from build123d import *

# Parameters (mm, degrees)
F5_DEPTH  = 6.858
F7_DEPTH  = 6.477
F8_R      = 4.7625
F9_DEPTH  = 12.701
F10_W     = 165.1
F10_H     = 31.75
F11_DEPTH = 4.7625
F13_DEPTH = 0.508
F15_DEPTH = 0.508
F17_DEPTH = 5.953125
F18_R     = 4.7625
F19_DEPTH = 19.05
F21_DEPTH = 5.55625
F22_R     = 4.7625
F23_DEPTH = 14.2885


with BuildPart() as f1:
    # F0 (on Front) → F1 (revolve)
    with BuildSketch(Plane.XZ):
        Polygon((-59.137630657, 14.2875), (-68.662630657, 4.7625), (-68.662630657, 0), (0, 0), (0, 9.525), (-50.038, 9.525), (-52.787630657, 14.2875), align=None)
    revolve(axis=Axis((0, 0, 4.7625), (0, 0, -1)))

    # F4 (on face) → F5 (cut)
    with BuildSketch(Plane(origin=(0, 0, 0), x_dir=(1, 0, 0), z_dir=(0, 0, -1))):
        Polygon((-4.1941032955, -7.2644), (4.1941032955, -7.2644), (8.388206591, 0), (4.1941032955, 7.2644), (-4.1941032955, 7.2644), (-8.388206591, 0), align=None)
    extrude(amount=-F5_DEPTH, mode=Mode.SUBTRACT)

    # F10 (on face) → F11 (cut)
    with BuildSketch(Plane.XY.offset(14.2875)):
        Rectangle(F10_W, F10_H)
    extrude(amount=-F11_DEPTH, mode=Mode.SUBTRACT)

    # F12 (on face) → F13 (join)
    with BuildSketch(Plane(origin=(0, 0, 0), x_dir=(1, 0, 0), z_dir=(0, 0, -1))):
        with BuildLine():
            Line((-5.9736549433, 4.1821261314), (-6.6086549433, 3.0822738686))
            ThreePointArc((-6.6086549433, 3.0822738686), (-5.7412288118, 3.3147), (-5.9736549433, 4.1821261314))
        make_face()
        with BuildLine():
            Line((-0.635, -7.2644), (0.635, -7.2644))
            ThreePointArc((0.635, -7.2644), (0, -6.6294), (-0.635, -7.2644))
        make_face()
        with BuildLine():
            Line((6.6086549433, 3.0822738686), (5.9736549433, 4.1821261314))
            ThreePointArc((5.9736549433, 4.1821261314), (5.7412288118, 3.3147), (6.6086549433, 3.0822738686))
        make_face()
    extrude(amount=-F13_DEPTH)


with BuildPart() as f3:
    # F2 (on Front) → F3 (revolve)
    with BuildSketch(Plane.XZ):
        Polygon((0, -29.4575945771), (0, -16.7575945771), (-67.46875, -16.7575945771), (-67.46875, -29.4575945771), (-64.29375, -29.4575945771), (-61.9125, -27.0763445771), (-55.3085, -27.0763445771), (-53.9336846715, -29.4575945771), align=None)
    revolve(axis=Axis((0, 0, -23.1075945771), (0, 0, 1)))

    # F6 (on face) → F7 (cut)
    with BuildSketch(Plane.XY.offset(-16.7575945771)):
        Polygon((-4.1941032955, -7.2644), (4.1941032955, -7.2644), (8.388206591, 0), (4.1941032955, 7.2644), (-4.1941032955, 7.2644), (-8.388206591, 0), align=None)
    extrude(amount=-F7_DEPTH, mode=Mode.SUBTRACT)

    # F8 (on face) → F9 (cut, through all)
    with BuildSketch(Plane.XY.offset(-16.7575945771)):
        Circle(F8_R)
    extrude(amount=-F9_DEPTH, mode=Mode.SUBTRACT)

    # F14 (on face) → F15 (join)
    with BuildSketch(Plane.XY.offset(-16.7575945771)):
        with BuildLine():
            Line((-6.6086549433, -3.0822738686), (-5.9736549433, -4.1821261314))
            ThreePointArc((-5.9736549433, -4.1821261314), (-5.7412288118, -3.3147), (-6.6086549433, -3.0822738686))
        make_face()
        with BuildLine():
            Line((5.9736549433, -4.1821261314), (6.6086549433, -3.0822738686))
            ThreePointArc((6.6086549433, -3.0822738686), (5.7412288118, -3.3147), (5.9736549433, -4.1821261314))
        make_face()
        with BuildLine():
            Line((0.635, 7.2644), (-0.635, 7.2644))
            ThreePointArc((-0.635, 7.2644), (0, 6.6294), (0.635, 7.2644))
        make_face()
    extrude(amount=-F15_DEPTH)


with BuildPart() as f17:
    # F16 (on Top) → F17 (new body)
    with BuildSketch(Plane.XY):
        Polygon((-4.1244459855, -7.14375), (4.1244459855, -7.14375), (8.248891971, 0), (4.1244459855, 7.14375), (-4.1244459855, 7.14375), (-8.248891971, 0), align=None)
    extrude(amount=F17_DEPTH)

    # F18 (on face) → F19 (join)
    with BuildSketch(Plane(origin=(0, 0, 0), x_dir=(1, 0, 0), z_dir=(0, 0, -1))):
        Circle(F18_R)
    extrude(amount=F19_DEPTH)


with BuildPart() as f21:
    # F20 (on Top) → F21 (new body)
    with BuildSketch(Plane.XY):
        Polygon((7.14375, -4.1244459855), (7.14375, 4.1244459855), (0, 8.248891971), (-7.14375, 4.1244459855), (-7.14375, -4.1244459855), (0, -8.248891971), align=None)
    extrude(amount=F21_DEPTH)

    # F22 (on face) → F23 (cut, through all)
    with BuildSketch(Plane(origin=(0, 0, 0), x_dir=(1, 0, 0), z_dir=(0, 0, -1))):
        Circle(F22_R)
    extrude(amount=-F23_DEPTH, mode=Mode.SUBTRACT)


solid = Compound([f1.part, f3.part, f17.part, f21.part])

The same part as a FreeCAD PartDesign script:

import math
import FreeCAD as App
import Part
import Sketcher
Q = App.Units.Quantity


def add_polygon(sketch, points):
    """Adds a closed chain of lines whose ends are joined by coincident constraints."""
    first, n = sketch.GeometryCount, len(points)
    for a, b in zip(points, points[1:] + points[:1]):
        sketch.addGeometry(Part.LineSegment(App.Vector(*a, 0), App.Vector(*b, 0)), False)
    for i in range(n):
        sketch.addConstraint(Sketcher.Constraint("Coincident", first + i, 2, first + (i + 1) % n, 1))

doc = App.newDocument("Part")
body = doc.addObject("PartDesign::Body", "Body")

sketch1 = body.newObject("Sketcher::SketchObject", "Sketch")
sketch1.AttachmentSupport = (doc.getObject("XZ_Plane"), [""])
sketch1.MapMode = "FlatFace"
add_polygon(sketch1, [(-59.137631, 14.2875), (-68.662631, 4.7625), (-68.662631, 0), (0, 0), (0, 9.525), (-50.038, 9.525), (-52.787631, 14.2875)])
sketch1.addConstraint(Sketcher.Constraint("Vertical", 1))
sketch1.addConstraint(Sketcher.Constraint("Horizontal", 2))
sketch1.addConstraint(Sketcher.Constraint("Vertical", 3))
sketch1.addConstraint(Sketcher.Constraint("Horizontal", 4))
sketch1.addConstraint(Sketcher.Constraint("Horizontal", 6))
sketch1.addConstraint(Sketcher.Constraint("Coincident", 2, 2, -1, 1))
sketch1.addConstraint(Sketcher.Constraint("Angle", 0, Q("-135 deg")))
sketch1.addConstraint(Sketcher.Constraint("Angle", 5, Q("120 deg")))
sketch1.addConstraint(Sketcher.Constraint("DistanceX", 4, 2, 4, 1, Q("1.97 in")))
sketch1.addConstraint(Sketcher.Constraint("DistanceX", 6, 2, 6, 1, Q("0.25 in")))
sketch1.addConstraint(Sketcher.Constraint("DistanceY", 1, 2, 1, 1, Q("0.1875 in")))
sketch1.addConstraint(Sketcher.Constraint("DistanceY", 3, 1, 3, 2, Q("0.375 in")))
sketch1.addConstraint(Sketcher.Constraint("DistanceY", -1, 1, 5, 2, Q("0.5625 in")))
revolution = body.newObject("PartDesign::Revolution", "Revolution")
revolution.Profile = sketch1
revolution.ReferenceAxis = (sketch1, ["V_Axis"])
revolution.Angle = 360

sketch2 = body.newObject("Sketcher::SketchObject", "Sketch001")
sketch2.AttachmentSupport = (doc.getObject("XY_Plane"), [""])
sketch2.MapMode = "FlatFace"
add_polygon(sketch2, [(-4.194103, 7.2644), (4.194103, 7.2644), (8.388207, 0), (4.194103, -7.2644), (-4.194103, -7.2644), (-8.388207, 0)])
sketch2.addConstraint(Sketcher.Constraint("Horizontal", 0))
sketch2.addConstraint(Sketcher.Constraint("Horizontal", 3))
sketch2.addConstraint(Sketcher.Constraint("Symmetric", 0, 2, 3, 2, -1, 1))
sketch2.addConstraint(Sketcher.Constraint("Symmetric", 1, 2, 4, 2, -1, 1))
sketch2.addConstraint(Sketcher.Constraint("PointOnObject", 1, 2, -1))
sketch2.addConstraint(Sketcher.Constraint("Parallel", 2, 5))
sketch2.addConstraint(Sketcher.Constraint("Vertical", 0, 2, 2, 2))
sketch2.addConstraint(Sketcher.Constraint("Angle", 1, Q("-60 deg")))
sketch2.addConstraint(Sketcher.Constraint("DistanceY", -1, 1, 0, 2, Q("0.286 in")))
sketch2.addConstraint(Sketcher.Constraint("DistanceX", 0, 1, 0, 2, 8.388207))
pocket1 = body.newObject("PartDesign::Pocket", "Pocket")
pocket1.Profile = sketch2
pocket1.Length = Q("0.27 in")
pocket1.Reversed = True

sketch3 = body.newObject("Sketcher::SketchObject", "Sketch002")
sketch3.AttachmentSupport = (doc.getObject("XY_Plane"), [""])
sketch3.MapMode = "FlatFace"
sketch3.AttachmentOffset = App.Placement(App.Vector(0, 0, 0.5625 * 25.4), App.Rotation())
add_polygon(sketch3, [(-82.55, 15.875), (-82.55, -15.875), (82.55, -15.875), (82.55, 15.875)])
sketch3.addConstraint(Sketcher.Constraint("Vertical", 0))
sketch3.addConstraint(Sketcher.Constraint("Horizontal", 1))
sketch3.addConstraint(Sketcher.Constraint("Vertical", 2))
sketch3.addConstraint(Sketcher.Constraint("Horizontal", 3))
sketch3.addConstraint(Sketcher.Constraint("Symmetric", 0, 2, 2, 2, -1, 1))
sketch3.addConstraint(Sketcher.Constraint("DistanceX", 1, 1, 1, 2, Q("6.5 in")))
sketch3.addConstraint(Sketcher.Constraint("DistanceY", 0, 2, 0, 1, Q("1.25 in")))
pocket2 = body.newObject("PartDesign::Pocket", "Pocket001")
pocket2.Profile = sketch3
pocket2.Length = Q("0.1875 in")

sketch4 = body.newObject("Sketcher::SketchObject", "Sketch003")
sketch4.AttachmentSupport = (doc.getObject("XY_Plane"), [""])
sketch4.MapMode = "FlatFace"
sketch4.addGeometry(Part.LineSegment(App.Vector(-5.973655, -4.182126, 0), App.Vector(-6.608655, -3.082274, 0)), False)
sketch4.addGeometry(Part.ArcOfCircle(Part.Circle(App.Vector(-6.291155, -3.6322, 0), App.Vector(0, 0, 1), 0.635), math.radians(-60), math.radians(120)), False)
sketch4.addGeometry(Part.LineSegment(App.Vector(-0.635, 7.2644, 0), App.Vector(0.635, 7.2644, 0)), False)
sketch4.addGeometry(Part.ArcOfCircle(Part.Circle(App.Vector(0, 7.2644, 0), App.Vector(0, 0, 1), 0.635), math.radians(180), math.radians(360)), False)
sketch4.addGeometry(Part.LineSegment(App.Vector(6.608655, -3.082274, 0), App.Vector(5.973655, -4.182126, 0)), False)
sketch4.addGeometry(Part.ArcOfCircle(Part.Circle(App.Vector(6.291155, -3.6322, 0), App.Vector(0, 0, 1), 0.635), math.radians(60), math.radians(240)), False)
sketch4.addConstraint(Sketcher.Constraint("Coincident", 0, 1, 1, 1))
sketch4.addConstraint(Sketcher.Constraint("Coincident", 1, 2, 0, 2))
sketch4.addConstraint(Sketcher.Constraint("Coincident", 2, 1, 3, 1))
sketch4.addConstraint(Sketcher.Constraint("Coincident", 3, 2, 2, 2))
sketch4.addConstraint(Sketcher.Constraint("Coincident", 4, 1, 5, 1))
sketch4.addConstraint(Sketcher.Constraint("Coincident", 5, 2, 4, 2))
sketch4.addConstraint(Sketcher.Constraint("Horizontal", 2))
sketch4.addConstraint(Sketcher.Constraint("Equal", 1, 3))
sketch4.addConstraint(Sketcher.Constraint("Equal", 3, 5))
sketch4.addConstraint(Sketcher.Constraint("Symmetric", 1, 3, 5, 3, -2))
sketch4.addConstraint(Sketcher.Constraint("PointOnObject", 3, 3, -2))
sketch4.addConstraint(Sketcher.Constraint("Horizontal", 3, 3, 2, 1))
sketch4.addConstraint(Sketcher.Constraint("Horizontal", 1, 2, 4, 1))
sketch4.addConstraint(Sketcher.Constraint("Horizontal", 0, 1, 5, 2))
sketch4.addConstraint(Sketcher.Constraint("Angle", 0, Q("120 deg")))
sketch4.addConstraint(Sketcher.Constraint("Radius", 1, Q("0.025 in")))
sketch4.addConstraint(Sketcher.Constraint("DistanceY", 1, 3, -1, 1, Q("0.143 in")))
sketch4.addConstraint(Sketcher.Constraint("DistanceY", -1, 1, 3, 3, Q("0.286 in")))
sketch4.addConstraint(Sketcher.Constraint("DistanceX", 1, 3, 0, 1, Q("0.0125 in")))
sketch4.addConstraint(Sketcher.Constraint("DistanceX", 1, 3, 5, 3, 12.58231))
pad1 = body.newObject("PartDesign::Pad", "Pad")
pad1.Profile = sketch4
pad1.Length = Q("0.02 in")
body2 = doc.addObject("PartDesign::Body", "Body001")

sketch5 = body2.newObject("Sketcher::SketchObject", "Sketch004")
sketch5.AttachmentSupport = (doc.getObject("XZ_Plane001"), [""])
sketch5.MapMode = "FlatFace"
add_polygon(sketch5, [(0, -29.457595), (0, -16.757595), (-67.46875, -16.757595), (-67.46875, -29.457595), (-64.29375, -29.457595), (-61.9125, -27.076345), (-55.3085, -27.076345), (-53.933685, -29.457595)])
sketch5.addConstraint(Sketcher.Constraint("Vertical", 0))
sketch5.addConstraint(Sketcher.Constraint("Horizontal", 1))
sketch5.addConstraint(Sketcher.Constraint("Vertical", 2))
sketch5.addConstraint(Sketcher.Constraint("Horizontal", 3))
sketch5.addConstraint(Sketcher.Constraint("Horizontal", 5))
sketch5.addConstraint(Sketcher.Constraint("Horizontal", 7))
sketch5.addConstraint(Sketcher.Constraint("PointOnObject", 0, 2, -2))
sketch5.addConstraint(Sketcher.Constraint("Horizontal", 3, 2, 6, 2))
sketch5.addConstraint(Sketcher.Constraint("DistanceY", 0, 1, 0, 2, Q("0.5 in")))
sketch5.addConstraint(Sketcher.Constraint("Angle", 4, Q("45 deg")))
sketch5.addConstraint(Sketcher.Constraint("Angle", 6, Q("-60 deg")))
sketch5.addConstraint(Sketcher.Constraint("DistanceX", 5, 1, 5, 2, Q("0.26 in")))
sketch5.addConstraint(Sketcher.Constraint("DistanceX", 1, 2, 1, 1, Q("2.65625 in")))
sketch5.addConstraint(Sketcher.Constraint("DistanceX", 3, 1, 3, 2, Q("0.125 in")))
sketch5.addConstraint(Sketcher.Constraint("DistanceX", 4, 2, -1, 1, Q("2.4375 in")))
sketch5.addConstraint(Sketcher.Constraint("DistanceY", 0, 2, -1, 1, 16.757595))
revolution2 = body2.newObject("PartDesign::Revolution", "Revolution001")
revolution2.Profile = sketch5
revolution2.ReferenceAxis = (sketch5, ["V_Axis"])
revolution2.Angle = 360

sketch6 = body2.newObject("Sketcher::SketchObject", "Sketch005")
sketch6.AttachmentSupport = (doc.getObject("XY_Plane001"), [""])
sketch6.MapMode = "FlatFace"
sketch6.AttachmentOffset = App.Placement(App.Vector(0, 0, -16.757595), App.Rotation())
add_polygon(sketch6, [(-4.194103, -7.2644), (4.194103, -7.2644), (8.388207, 0), (4.194103, 7.2644), (-4.194103, 7.2644), (-8.388207, 0)])
sketch6.addConstraint(Sketcher.Constraint("Horizontal", 0))
sketch6.addConstraint(Sketcher.Constraint("Horizontal", 3))
sketch6.addConstraint(Sketcher.Constraint("Symmetric", 0, 2, 3, 2, -1, 1))
sketch6.addConstraint(Sketcher.Constraint("Symmetric", 1, 2, 4, 2, -1, 1))
sketch6.addConstraint(Sketcher.Constraint("PointOnObject", 1, 2, -1))
sketch6.addConstraint(Sketcher.Constraint("Parallel", 2, 5))
sketch6.addConstraint(Sketcher.Constraint("Vertical", 0, 2, 2, 2))
sketch6.addConstraint(Sketcher.Constraint("Angle", 1, Q("60 deg")))
sketch6.addConstraint(Sketcher.Constraint("DistanceY", 0, 2, -1, 1, Q("0.286 in")))
sketch6.addConstraint(Sketcher.Constraint("DistanceX", 0, 1, 0, 2, 8.388207))
pocket3 = body2.newObject("PartDesign::Pocket", "Pocket002")
pocket3.Profile = sketch6
pocket3.Length = Q("0.255 in")

sketch7 = body2.newObject("Sketcher::SketchObject", "Sketch006")
sketch7.AttachmentSupport = (doc.getObject("XY_Plane001"), [""])
sketch7.MapMode = "FlatFace"
sketch7.AttachmentOffset = App.Placement(App.Vector(0, 0, -16.757595), App.Rotation())
sketch7.addGeometry(Part.Circle(App.Vector(0, 0, 0), App.Vector(0, 0, 1), 4.7625), False)
sketch7.addConstraint(Sketcher.Constraint("Coincident", 0, 3, -1, 1))
sketch7.addConstraint(Sketcher.Constraint("Diameter", 0, Q("0.375 in")))
pocket4 = body2.newObject("PartDesign::Pocket", "Pocket003")
pocket4.Profile = sketch7
pocket4.Type = "ThroughAll"

sketch8 = body2.newObject("Sketcher::SketchObject", "Sketch007")
sketch8.AttachmentSupport = (doc.getObject("XY_Plane001"), [""])
sketch8.MapMode = "FlatFace"
sketch8.AttachmentOffset = App.Placement(App.Vector(0, 0, -16.757595), App.Rotation())
sketch8.addGeometry(Part.LineSegment(App.Vector(-6.608655, -3.082274, 0), App.Vector(-5.973655, -4.182126, 0)), False)
sketch8.addGeometry(Part.ArcOfCircle(Part.Circle(App.Vector(-6.291155, -3.6322, 0), App.Vector(0, 0, 1), 0.635), math.radians(-60), math.radians(120)), False)
sketch8.addGeometry(Part.LineSegment(App.Vector(5.973655, -4.182126, 0), App.Vector(6.608655, -3.082274, 0)), False)
sketch8.addGeometry(Part.ArcOfCircle(Part.Circle(App.Vector(6.291155, -3.6322, 0), App.Vector(0, 0, 1), 0.635), math.radians(60), math.radians(240)), False)
sketch8.addGeometry(Part.LineSegment(App.Vector(0.635, 7.2644, 0), App.Vector(-0.635, 7.2644, 0)), False)
sketch8.addGeometry(Part.ArcOfCircle(Part.Circle(App.Vector(0, 7.2644, 0), App.Vector(0, 0, 1), 0.635), math.radians(180), math.radians(360)), False)
sketch8.addConstraint(Sketcher.Constraint("Coincident", 0, 1, 1, 2))
sketch8.addConstraint(Sketcher.Constraint("Coincident", 1, 1, 0, 2))
sketch8.addConstraint(Sketcher.Constraint("Coincident", 2, 1, 3, 2))
sketch8.addConstraint(Sketcher.Constraint("Coincident", 3, 1, 2, 2))
sketch8.addConstraint(Sketcher.Constraint("Coincident", 4, 1, 5, 2))
sketch8.addConstraint(Sketcher.Constraint("Coincident", 5, 1, 4, 2))
sketch8.addConstraint(Sketcher.Constraint("Horizontal", 4))
sketch8.addConstraint(Sketcher.Constraint("Equal", 1, 3))
sketch8.addConstraint(Sketcher.Constraint("Equal", 3, 5))
sketch8.addConstraint(Sketcher.Constraint("Symmetric", 1, 3, 3, 3, -2))
sketch8.addConstraint(Sketcher.Constraint("PointOnObject", 5, 3, -2))
sketch8.addConstraint(Sketcher.Constraint("Horizontal", 1, 1, 2, 1))
sketch8.addConstraint(Sketcher.Constraint("Horizontal", 0, 1, 3, 1))
sketch8.addConstraint(Sketcher.Constraint("Horizontal", 5, 3, 4, 1))
sketch8.addConstraint(Sketcher.Constraint("Angle", 0, Q("-60 deg")))
sketch8.addConstraint(Sketcher.Constraint("Radius", 1, Q("0.025 in")))
sketch8.addConstraint(Sketcher.Constraint("DistanceY", 1, 3, -1, 1, Q("0.143 in")))
sketch8.addConstraint(Sketcher.Constraint("DistanceY", -1, 1, 5, 3, Q("0.286 in")))
sketch8.addConstraint(Sketcher.Constraint("DistanceX", 0, 1, 1, 3, Q("0.0125 in")))
sketch8.addConstraint(Sketcher.Constraint("DistanceX", 1, 3, 3, 3, 12.58231))
pad2 = body2.newObject("PartDesign::Pad", "Pad001")
pad2.Profile = sketch8
pad2.Length = Q("0.02 in")
pad2.Reversed = True
body3 = doc.addObject("PartDesign::Body", "Body002")

sketch9 = body3.newObject("Sketcher::SketchObject", "Sketch008")
sketch9.AttachmentSupport = (doc.getObject("XY_Plane002"), [""])
sketch9.MapMode = "FlatFace"
add_polygon(sketch9, [(-4.124446, -7.14375), (4.124446, -7.14375), (8.248892, 0), (4.124446, 7.14375), (-4.124446, 7.14375), (-8.248892, 0)])
sketch9.addConstraint(Sketcher.Constraint("Horizontal", 0))
sketch9.addConstraint(Sketcher.Constraint("Horizontal", 3))
sketch9.addConstraint(Sketcher.Constraint("Symmetric", 0, 2, 3, 2, -1, 1))
sketch9.addConstraint(Sketcher.Constraint("Symmetric", 1, 2, 4, 2, -1, 1))
sketch9.addConstraint(Sketcher.Constraint("PointOnObject", 1, 2, -1))
sketch9.addConstraint(Sketcher.Constraint("Parallel", 2, 5))
sketch9.addConstraint(Sketcher.Constraint("Vertical", 0, 2, 2, 2))
sketch9.addConstraint(Sketcher.Constraint("Angle", 1, Q("60 deg")))
sketch9.addConstraint(Sketcher.Constraint("DistanceY", 0, 2, -1, 1, Q("0.28125 in")))
sketch9.addConstraint(Sketcher.Constraint("DistanceX", 0, 1, 0, 2, 8.248892))
pad3 = body3.newObject("PartDesign::Pad", "Pad002")
pad3.Profile = sketch9
pad3.Length = Q("0.234375 in")

sketch10 = body3.newObject("Sketcher::SketchObject", "Sketch009")
sketch10.AttachmentSupport = (doc.getObject("XY_Plane002"), [""])
sketch10.MapMode = "FlatFace"
sketch10.addGeometry(Part.Circle(App.Vector(0, 0, 0), App.Vector(0, 0, 1), 4.7625), False)
sketch10.addConstraint(Sketcher.Constraint("Coincident", 0, 3, -1, 1))
sketch10.addConstraint(Sketcher.Constraint("Diameter", 0, Q("0.375 in")))
pad4 = body3.newObject("PartDesign::Pad", "Pad003")
pad4.Profile = sketch10
pad4.Length = Q("0.75 in")
pad4.Reversed = True
body4 = doc.addObject("PartDesign::Body", "Body003")

sketch11 = body4.newObject("Sketcher::SketchObject", "Sketch010")
sketch11.AttachmentSupport = (doc.getObject("XY_Plane003"), [""])
sketch11.MapMode = "FlatFace"
add_polygon(sketch11, [(7.14375, -4.124446), (7.14375, 4.124446), (0, 8.248892), (-7.14375, 4.124446), (-7.14375, -4.124446), (0, -8.248892)])
sketch11.addConstraint(Sketcher.Constraint("Vertical", 0))
sketch11.addConstraint(Sketcher.Constraint("Vertical", 3))
sketch11.addConstraint(Sketcher.Constraint("Symmetric", 0, 2, 3, 2, -1, 1))
sketch11.addConstraint(Sketcher.Constraint("Symmetric", 1, 2, 4, 2, -1, 1))
sketch11.addConstraint(Sketcher.Constraint("PointOnObject", 1, 2, -2))
sketch11.addConstraint(Sketcher.Constraint("Parallel", 2, 5))
sketch11.addConstraint(Sketcher.Constraint("Horizontal", 0, 2, 2, 2))
sketch11.addConstraint(Sketcher.Constraint("Angle", 1, Q("150 deg")))
sketch11.addConstraint(Sketcher.Constraint("DistanceX", -1, 1, 0, 2, Q("0.28125 in")))
sketch11.addConstraint(Sketcher.Constraint("DistanceY", 0, 1, 0, 2, 8.248892))
pad5 = body4.newObject("PartDesign::Pad", "Pad004")
pad5.Profile = sketch11
pad5.Length = Q("0.21875 in")

sketch12 = body4.newObject("Sketcher::SketchObject", "Sketch011")
sketch12.AttachmentSupport = (doc.getObject("XY_Plane003"), [""])
sketch12.MapMode = "FlatFace"
sketch12.addGeometry(Part.Circle(App.Vector(0, 0, 0), App.Vector(0, 0, 1), 4.7625), False)
sketch12.addConstraint(Sketcher.Constraint("Coincident", 0, 3, -1, 1))
sketch12.addConstraint(Sketcher.Constraint("Diameter", 0, Q("0.375 in")))
pocket5 = body4.newObject("PartDesign::Pocket", "Pocket004")
pocket5.Profile = sketch12
pocket5.Type = "ThroughAll"
pocket5.Reversed = True

doc.recompute()
